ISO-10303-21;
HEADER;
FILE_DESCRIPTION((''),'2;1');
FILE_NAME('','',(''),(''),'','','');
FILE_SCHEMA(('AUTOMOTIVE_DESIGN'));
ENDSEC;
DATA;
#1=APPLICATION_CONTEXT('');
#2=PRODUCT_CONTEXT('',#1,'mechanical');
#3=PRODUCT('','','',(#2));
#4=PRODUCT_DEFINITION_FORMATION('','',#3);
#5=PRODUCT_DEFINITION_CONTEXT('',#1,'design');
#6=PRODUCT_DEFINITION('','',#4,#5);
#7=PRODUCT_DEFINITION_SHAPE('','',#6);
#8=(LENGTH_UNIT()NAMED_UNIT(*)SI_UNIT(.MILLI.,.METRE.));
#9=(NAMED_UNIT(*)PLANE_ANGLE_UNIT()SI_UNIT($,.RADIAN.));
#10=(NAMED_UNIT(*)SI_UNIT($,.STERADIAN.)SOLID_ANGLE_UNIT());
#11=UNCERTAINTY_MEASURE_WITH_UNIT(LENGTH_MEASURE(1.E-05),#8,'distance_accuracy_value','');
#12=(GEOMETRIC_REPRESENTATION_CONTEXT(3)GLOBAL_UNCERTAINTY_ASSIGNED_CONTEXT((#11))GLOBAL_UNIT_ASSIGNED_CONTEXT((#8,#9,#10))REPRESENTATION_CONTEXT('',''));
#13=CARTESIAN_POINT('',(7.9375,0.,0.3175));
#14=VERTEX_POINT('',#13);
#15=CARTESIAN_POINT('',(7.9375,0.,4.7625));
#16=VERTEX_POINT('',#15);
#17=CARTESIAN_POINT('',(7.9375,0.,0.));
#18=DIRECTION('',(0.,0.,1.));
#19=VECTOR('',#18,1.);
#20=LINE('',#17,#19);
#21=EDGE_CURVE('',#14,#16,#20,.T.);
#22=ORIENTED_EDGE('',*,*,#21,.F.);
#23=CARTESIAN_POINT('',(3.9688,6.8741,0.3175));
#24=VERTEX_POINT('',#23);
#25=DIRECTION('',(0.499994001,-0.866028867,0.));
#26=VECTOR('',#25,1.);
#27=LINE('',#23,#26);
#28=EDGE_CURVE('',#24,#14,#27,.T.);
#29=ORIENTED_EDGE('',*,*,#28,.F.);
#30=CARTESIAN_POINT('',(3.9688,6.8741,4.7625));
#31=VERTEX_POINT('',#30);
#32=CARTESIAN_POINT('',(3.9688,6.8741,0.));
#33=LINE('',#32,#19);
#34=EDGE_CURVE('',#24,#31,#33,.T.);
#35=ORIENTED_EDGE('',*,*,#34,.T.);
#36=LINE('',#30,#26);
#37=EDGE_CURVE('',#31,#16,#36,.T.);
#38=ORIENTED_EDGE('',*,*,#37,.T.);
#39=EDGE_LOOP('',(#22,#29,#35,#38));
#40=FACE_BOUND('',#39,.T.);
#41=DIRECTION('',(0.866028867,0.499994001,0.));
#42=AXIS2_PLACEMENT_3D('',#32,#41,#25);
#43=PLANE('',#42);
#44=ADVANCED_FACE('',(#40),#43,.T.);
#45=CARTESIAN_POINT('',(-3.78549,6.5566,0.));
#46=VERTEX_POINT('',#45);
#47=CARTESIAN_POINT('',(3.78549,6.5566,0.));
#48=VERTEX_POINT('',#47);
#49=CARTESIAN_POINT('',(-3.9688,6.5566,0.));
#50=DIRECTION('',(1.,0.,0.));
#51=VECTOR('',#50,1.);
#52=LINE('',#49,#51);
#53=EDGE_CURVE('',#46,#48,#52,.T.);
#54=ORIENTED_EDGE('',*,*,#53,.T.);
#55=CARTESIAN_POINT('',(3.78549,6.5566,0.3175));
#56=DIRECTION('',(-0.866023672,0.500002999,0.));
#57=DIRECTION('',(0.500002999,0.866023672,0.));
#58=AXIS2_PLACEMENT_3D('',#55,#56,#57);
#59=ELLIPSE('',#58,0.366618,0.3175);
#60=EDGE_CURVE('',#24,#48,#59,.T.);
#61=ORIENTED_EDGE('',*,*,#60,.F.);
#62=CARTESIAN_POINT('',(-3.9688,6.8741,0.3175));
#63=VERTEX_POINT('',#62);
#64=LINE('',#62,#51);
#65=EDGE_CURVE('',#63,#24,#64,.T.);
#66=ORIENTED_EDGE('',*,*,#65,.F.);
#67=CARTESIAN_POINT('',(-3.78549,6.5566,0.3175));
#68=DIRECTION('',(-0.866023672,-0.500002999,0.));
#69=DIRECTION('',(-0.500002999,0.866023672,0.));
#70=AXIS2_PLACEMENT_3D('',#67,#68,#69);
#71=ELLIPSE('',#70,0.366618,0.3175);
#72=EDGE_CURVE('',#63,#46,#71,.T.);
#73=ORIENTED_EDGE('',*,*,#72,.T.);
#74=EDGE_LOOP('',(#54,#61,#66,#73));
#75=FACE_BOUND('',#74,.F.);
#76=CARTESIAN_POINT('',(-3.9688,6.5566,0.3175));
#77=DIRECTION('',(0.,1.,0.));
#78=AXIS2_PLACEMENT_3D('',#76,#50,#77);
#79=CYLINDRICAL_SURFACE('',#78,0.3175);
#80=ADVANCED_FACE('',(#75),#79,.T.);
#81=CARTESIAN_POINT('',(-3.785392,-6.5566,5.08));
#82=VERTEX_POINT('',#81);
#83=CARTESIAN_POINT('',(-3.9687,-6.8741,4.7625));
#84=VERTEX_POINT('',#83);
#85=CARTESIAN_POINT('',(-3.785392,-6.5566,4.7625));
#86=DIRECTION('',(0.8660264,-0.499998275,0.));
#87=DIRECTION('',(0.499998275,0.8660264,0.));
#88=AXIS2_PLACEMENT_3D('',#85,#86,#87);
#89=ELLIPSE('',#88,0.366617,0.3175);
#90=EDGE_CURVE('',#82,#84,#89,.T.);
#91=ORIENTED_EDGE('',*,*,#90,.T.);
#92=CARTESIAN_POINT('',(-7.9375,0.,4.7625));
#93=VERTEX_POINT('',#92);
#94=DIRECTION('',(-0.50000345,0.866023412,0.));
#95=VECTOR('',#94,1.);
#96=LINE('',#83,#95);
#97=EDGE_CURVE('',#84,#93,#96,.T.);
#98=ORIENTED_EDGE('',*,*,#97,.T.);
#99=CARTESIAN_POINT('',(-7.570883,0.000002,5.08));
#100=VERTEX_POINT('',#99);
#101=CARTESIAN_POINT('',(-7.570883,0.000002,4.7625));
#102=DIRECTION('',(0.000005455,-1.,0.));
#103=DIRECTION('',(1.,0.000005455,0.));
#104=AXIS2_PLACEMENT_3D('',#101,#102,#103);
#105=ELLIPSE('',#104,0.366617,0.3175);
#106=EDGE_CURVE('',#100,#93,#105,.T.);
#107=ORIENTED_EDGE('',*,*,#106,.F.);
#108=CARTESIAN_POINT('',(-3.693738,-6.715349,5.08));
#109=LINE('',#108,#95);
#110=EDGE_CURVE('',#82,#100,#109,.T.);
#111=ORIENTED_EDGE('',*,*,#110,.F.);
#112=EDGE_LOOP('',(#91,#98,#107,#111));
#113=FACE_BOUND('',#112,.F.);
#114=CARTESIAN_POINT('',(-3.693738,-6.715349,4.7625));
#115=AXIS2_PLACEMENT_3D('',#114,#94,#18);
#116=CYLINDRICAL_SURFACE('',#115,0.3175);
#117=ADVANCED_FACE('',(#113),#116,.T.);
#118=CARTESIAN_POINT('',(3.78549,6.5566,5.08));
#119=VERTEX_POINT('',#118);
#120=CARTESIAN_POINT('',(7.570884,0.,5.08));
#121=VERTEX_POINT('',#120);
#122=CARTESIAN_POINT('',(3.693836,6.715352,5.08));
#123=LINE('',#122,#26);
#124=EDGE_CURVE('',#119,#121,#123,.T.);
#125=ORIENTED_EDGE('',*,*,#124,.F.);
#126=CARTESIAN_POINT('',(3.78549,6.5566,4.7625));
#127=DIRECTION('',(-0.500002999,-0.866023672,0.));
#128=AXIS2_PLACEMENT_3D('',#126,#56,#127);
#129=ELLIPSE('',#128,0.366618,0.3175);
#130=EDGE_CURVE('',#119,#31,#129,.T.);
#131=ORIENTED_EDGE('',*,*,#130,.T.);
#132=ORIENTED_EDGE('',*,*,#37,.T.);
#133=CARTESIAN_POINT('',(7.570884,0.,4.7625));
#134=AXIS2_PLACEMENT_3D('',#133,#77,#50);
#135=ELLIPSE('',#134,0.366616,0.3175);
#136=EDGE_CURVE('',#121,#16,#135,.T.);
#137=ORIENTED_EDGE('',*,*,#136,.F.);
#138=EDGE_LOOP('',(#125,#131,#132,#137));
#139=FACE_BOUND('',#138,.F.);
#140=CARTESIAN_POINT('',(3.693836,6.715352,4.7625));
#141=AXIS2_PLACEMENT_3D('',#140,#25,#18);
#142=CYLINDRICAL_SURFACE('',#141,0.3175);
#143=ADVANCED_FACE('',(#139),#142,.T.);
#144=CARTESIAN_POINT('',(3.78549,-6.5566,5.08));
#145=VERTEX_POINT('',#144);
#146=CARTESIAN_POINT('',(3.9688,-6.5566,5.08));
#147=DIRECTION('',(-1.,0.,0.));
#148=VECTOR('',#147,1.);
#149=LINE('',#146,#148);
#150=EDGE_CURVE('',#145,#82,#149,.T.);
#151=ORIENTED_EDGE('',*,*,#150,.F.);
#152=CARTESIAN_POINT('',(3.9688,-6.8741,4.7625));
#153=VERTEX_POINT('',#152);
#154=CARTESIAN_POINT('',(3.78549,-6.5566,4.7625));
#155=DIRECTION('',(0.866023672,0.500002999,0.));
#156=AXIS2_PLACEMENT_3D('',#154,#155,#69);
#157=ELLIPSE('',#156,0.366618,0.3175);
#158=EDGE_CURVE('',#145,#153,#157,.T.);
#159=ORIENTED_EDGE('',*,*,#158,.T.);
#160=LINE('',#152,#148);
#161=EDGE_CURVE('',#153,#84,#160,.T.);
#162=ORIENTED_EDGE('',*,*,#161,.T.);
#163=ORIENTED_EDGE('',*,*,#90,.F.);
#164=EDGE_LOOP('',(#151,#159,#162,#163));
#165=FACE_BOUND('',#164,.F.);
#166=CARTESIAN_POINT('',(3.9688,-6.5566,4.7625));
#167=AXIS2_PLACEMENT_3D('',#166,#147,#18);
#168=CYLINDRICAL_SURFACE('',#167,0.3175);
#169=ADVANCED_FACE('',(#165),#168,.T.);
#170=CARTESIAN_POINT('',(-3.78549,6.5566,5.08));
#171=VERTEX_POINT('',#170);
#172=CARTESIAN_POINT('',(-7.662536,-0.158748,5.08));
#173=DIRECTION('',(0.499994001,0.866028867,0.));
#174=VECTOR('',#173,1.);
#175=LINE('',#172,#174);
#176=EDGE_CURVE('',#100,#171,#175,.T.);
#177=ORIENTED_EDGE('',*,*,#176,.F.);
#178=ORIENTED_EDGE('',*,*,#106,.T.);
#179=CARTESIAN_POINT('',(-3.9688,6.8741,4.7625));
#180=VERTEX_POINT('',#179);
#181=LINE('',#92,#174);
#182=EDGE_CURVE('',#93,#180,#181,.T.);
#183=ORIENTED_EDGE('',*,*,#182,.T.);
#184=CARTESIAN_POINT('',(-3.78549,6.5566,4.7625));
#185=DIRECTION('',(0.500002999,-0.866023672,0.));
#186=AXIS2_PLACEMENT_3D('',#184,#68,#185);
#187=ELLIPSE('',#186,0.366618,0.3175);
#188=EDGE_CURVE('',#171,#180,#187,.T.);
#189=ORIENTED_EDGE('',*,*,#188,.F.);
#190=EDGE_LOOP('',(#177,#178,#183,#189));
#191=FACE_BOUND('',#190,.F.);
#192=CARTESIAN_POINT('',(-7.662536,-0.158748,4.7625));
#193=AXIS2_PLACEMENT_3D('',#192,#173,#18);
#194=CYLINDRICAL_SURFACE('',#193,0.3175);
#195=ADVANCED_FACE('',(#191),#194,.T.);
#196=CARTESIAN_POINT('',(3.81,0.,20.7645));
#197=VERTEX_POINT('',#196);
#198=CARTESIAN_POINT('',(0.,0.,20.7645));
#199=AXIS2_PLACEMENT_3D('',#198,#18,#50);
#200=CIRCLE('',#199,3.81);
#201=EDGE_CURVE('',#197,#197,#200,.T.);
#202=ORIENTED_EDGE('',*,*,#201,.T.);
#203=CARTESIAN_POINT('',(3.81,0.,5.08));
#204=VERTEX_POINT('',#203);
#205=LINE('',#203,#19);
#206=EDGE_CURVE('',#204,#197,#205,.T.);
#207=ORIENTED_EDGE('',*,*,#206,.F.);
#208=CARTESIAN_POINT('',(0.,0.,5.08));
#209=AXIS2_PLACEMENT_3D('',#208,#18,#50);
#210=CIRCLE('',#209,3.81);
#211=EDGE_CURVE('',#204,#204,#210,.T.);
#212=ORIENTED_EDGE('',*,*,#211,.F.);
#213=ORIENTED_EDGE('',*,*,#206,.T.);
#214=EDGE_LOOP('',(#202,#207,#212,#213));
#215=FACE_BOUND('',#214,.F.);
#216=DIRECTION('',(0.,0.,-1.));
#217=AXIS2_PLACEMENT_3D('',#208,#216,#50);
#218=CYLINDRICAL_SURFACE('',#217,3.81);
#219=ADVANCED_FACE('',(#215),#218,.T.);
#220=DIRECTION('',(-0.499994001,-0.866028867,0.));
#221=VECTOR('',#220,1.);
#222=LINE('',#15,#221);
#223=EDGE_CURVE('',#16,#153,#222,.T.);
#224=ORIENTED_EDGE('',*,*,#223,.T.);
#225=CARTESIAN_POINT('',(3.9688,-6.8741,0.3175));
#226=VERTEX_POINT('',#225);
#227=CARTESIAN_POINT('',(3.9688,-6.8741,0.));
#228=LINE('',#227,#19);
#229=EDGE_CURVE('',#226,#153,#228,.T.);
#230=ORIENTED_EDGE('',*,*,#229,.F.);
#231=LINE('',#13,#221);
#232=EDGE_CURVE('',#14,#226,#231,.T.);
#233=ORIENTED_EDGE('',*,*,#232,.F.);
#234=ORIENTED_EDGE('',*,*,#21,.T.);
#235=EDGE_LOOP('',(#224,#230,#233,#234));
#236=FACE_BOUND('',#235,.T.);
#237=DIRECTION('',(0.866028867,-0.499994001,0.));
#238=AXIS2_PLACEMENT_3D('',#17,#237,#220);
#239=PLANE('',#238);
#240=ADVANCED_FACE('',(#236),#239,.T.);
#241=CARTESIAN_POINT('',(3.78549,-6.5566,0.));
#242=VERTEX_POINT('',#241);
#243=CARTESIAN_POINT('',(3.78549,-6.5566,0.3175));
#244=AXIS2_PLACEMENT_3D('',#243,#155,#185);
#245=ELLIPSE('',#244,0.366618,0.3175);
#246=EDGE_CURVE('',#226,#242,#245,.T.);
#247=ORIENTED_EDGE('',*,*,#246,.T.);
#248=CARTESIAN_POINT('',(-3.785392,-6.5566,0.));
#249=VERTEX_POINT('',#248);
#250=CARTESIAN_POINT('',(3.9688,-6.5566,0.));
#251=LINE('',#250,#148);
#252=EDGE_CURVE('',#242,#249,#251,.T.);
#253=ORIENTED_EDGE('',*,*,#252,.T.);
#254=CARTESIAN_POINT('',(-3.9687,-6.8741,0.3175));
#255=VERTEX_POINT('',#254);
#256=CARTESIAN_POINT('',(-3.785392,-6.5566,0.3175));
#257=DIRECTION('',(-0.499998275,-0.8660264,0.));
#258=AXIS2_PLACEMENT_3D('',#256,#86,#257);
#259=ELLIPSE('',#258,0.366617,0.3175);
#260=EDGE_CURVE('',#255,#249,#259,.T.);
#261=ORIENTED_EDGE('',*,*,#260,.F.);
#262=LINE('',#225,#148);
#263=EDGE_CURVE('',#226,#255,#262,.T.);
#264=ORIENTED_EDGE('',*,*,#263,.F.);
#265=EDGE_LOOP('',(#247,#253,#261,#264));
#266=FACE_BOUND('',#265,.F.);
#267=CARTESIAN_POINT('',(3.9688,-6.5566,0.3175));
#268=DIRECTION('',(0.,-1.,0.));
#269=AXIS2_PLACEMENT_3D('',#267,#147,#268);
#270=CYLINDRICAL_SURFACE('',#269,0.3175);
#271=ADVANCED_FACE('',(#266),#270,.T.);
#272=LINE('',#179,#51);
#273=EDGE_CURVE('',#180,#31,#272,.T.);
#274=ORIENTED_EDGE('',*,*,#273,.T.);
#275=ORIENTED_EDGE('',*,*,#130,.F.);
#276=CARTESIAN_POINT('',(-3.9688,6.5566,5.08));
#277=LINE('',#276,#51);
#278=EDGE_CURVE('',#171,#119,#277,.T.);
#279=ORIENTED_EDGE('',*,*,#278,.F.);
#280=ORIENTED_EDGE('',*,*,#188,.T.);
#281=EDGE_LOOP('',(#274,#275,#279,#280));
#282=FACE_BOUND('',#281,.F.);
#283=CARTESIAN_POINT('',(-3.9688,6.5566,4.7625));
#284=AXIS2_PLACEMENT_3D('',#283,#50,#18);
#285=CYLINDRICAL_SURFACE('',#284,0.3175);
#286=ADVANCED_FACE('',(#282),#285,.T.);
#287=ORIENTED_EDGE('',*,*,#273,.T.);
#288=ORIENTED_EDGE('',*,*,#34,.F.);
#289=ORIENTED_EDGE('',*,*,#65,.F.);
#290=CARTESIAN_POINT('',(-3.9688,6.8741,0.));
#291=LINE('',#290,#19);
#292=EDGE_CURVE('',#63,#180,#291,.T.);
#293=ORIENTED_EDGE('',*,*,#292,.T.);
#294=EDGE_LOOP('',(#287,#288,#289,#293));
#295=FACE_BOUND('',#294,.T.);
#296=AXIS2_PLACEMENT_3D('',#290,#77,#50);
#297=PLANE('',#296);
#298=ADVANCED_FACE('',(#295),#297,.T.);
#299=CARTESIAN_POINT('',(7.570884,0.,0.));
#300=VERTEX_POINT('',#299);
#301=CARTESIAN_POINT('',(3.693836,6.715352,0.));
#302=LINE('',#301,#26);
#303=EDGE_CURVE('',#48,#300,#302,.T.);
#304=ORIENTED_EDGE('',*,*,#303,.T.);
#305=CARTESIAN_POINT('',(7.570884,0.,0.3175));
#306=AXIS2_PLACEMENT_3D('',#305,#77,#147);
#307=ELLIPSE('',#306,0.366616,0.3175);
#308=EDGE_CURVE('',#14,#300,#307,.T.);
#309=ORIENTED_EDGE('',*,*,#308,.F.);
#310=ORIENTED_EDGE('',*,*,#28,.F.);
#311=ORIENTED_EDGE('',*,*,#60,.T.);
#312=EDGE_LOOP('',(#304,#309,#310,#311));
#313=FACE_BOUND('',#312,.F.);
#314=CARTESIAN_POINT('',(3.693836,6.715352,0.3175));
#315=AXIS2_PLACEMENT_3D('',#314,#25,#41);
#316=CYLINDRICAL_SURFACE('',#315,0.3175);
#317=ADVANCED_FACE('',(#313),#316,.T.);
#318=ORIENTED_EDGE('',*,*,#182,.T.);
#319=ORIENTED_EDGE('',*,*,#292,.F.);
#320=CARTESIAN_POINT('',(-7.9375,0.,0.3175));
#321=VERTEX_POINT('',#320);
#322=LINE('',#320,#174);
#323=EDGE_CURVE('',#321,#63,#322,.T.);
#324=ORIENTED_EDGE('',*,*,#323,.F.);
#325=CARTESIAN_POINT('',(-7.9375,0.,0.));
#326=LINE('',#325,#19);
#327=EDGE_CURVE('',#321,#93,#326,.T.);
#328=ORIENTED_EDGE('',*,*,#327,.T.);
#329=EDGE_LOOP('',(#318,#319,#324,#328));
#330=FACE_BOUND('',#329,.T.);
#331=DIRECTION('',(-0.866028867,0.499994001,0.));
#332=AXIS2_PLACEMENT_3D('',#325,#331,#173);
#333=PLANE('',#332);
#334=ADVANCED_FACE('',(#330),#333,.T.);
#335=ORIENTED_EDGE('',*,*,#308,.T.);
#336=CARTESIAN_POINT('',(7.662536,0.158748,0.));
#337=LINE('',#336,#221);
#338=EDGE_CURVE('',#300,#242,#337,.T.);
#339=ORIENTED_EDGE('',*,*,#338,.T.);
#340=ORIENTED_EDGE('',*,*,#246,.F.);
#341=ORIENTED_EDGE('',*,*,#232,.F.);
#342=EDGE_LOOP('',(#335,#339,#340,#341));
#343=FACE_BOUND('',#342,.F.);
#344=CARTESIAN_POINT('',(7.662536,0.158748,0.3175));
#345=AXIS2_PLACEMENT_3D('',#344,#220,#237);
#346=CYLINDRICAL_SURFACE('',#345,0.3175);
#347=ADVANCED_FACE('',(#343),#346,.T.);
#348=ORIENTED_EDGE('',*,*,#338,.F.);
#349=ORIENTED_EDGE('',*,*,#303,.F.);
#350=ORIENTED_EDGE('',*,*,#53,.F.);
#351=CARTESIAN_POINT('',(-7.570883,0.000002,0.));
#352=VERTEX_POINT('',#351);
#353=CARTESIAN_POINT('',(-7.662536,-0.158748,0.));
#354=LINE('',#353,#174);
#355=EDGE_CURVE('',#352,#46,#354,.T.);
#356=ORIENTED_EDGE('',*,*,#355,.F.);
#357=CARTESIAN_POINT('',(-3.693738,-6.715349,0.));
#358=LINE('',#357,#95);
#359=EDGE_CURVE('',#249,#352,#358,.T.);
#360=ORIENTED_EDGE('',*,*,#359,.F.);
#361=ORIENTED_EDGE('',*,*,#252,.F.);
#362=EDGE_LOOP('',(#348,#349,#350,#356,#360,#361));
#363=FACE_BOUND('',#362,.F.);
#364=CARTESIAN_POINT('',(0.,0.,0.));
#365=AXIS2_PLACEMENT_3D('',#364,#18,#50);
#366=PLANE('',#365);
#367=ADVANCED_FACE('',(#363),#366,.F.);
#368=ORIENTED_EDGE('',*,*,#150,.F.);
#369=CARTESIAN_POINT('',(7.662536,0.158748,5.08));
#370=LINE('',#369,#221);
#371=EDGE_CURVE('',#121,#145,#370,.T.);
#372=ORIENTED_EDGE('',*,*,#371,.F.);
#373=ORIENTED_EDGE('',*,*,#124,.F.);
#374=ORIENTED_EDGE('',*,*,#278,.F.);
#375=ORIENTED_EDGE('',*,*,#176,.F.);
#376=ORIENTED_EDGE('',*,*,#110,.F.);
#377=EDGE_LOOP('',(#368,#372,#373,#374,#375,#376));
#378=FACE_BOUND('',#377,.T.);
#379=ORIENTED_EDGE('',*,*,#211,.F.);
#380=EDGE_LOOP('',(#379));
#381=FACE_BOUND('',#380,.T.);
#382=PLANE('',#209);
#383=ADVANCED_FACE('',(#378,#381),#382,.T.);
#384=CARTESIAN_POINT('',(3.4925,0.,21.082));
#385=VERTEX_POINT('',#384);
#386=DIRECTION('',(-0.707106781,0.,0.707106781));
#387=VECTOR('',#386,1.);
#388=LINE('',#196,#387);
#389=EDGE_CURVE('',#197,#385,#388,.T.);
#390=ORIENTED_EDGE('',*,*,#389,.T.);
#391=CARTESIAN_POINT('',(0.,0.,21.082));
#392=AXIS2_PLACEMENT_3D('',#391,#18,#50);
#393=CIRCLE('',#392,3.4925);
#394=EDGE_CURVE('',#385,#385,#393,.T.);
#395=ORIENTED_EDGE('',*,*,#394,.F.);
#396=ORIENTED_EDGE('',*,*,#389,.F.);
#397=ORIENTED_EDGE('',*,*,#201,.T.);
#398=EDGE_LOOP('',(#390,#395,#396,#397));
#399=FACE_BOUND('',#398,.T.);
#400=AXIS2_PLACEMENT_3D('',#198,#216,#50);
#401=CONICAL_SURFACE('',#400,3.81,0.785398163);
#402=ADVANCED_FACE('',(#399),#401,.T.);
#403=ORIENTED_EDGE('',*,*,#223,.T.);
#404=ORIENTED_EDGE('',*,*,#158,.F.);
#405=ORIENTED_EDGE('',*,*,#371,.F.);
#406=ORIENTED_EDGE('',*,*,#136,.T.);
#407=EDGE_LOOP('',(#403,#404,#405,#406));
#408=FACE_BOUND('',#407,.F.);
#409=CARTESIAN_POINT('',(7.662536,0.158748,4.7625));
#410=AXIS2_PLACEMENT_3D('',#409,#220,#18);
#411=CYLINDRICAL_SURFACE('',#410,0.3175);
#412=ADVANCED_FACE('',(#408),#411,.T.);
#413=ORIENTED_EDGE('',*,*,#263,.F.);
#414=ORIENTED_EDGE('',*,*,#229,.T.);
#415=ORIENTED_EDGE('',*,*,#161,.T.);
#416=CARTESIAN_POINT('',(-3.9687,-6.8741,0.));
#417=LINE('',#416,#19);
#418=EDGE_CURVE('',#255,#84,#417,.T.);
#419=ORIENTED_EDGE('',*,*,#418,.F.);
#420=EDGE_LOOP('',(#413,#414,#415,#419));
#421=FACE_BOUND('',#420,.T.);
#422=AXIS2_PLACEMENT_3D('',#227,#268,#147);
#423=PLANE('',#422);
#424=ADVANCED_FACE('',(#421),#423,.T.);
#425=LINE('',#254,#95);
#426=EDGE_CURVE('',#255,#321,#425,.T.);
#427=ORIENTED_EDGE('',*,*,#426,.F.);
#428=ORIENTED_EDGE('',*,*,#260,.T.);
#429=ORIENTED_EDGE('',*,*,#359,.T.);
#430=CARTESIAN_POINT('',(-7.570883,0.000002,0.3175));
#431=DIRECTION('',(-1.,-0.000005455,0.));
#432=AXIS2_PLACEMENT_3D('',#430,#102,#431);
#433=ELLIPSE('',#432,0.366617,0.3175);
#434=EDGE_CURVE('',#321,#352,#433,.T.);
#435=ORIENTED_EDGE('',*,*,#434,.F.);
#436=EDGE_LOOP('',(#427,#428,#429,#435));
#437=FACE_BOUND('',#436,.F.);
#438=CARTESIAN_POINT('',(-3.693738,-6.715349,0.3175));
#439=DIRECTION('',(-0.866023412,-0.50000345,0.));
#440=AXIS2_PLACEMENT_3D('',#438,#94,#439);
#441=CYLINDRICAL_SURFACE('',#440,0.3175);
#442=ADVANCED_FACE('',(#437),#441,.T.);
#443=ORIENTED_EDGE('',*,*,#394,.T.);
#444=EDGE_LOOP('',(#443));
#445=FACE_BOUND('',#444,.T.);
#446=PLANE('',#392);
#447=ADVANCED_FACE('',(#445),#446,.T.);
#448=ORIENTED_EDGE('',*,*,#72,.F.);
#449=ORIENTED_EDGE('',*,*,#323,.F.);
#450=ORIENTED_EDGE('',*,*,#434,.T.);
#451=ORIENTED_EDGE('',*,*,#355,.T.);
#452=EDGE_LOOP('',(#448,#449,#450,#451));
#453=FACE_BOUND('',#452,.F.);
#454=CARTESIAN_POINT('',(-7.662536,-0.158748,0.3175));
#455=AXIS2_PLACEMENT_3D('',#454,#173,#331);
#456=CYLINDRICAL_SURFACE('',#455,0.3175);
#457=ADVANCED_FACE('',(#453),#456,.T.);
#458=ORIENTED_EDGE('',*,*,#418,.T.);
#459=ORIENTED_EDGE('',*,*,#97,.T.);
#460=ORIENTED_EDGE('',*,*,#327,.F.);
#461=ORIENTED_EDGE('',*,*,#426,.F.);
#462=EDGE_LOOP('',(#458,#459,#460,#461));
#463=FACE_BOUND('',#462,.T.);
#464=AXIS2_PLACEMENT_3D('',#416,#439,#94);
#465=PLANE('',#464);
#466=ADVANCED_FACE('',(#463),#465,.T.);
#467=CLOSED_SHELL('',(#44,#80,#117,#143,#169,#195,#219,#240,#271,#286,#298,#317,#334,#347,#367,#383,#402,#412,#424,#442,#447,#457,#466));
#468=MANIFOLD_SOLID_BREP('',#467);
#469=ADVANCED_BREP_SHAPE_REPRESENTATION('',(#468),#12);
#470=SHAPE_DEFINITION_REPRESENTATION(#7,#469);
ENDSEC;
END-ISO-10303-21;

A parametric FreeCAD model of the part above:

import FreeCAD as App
import Part
import Sketcher
from FreeCAD import Vector
Q = App.Units.Quantity


def edges_at(feature, points):
    """Names of the edges that pass closest to the given points."""
    edges = feature.Shape.Edges
    near = lambda p: min(range(len(edges)), key=lambda i: edges[i].distToShape(Part.Vertex(*p))[0])
    return sorted({f"Edge{near(p) + 1}" for p in points})

doc = App.newDocument("Part")
body = doc.addObject("PartDesign::Body", "Body")

sketch1 = body.newObject("Sketcher::SketchObject", "Sketch")
sketch1.AttachmentSupport = (doc.getObject("XY_Plane"), [""])
sketch1.MapMode = "FlatFace"
sketch1.addGeometry(Part.LineSegment(Vector(4, -7, 0), Vector(8, 0, 0)), False)
sketch1.addGeometry(Part.LineSegment(Vector(8, 0, 0), Vector(4, 7, 0)), False)
sketch1.addGeometry(Part.LineSegment(Vector(4, 7, 0), Vector(-4, 7, 0)), False)
sketch1.addGeometry(Part.LineSegment(Vector(-4, 7, 0), Vector(-8, 0, 0)), False)
sketch1.addGeometry(Part.LineSegment(Vector(-8, 0, 0), Vector(-4, -7, 0)), False)
sketch1.addGeometry(Part.LineSegment(Vector(-4, -7, 0), Vector(4, -7, 0)), False)
sketch1.addConstraint(Sketcher.Constraint("Coincident", 0, 2, 1, 1))
sketch1.addConstraint(Sketcher.Constraint("Coincident", 1, 2, 2, 1))
sketch1.addConstraint(Sketcher.Constraint("Coincident", 2, 2, 3, 1))
sketch1.addConstraint(Sketcher.Constraint("Coincident", 3, 2, 4, 1))
sketch1.addConstraint(Sketcher.Constraint("Coincident", 4, 2, 5, 1))
sketch1.addConstraint(Sketcher.Constraint("Coincident", 5, 2, 0, 1))
sketch1.addConstraint(Sketcher.Constraint("Horizontal", 2))
sketch1.addConstraint(Sketcher.Constraint("Horizontal", 5))
sketch1.addConstraint(Sketcher.Constraint("Symmetric", 0, 2, 3, 2, -1, 1))
sketch1.addConstraint(Sketcher.Constraint("Symmetric", 1, 2, 4, 2, -1, 1))
sketch1.addConstraint(Sketcher.Constraint("PointOnObject", 0, 2, -1))
sketch1.addConstraint(Sketcher.Constraint("Parallel", 0, 3))
sketch1.addConstraint(Sketcher.Constraint("Vertical", 2, 2, 4, 2))
sketch1.addConstraint(Sketcher.Constraint("Angle", 0, Q("60.0004 deg")))
sketch1.addConstraint(Sketcher.Constraint("DistanceX", 3, 2, 0, 2, Q("0.625 in")))
sketch1.addConstraint(Sketcher.Constraint("DistanceX", 2, 2, 2, 1, Q("0.3125 in")))
pad1 = body.newObject("PartDesign::Pad", "Pad")
pad1.Profile = sketch1
pad1.Length = Q("0.2 in")

sketch2 = body.newObject("Sketcher::SketchObject", "Sketch001")
sketch2.AttachmentSupport = (doc.getObject("XY_Plane"), [""])
sketch2.MapMode = "FlatFace"
sketch2.AttachmentOffset = App.Placement(Vector(0, 0, 0.2 * 25.4), App.Rotation())
sketch2.addGeometry(Part.Circle(Vector(0, 0, 0), Vector(0, 0, 1), 3.8), False)
sketch2.addConstraint(Sketcher.Constraint("Coincident", 0, 3, -1, 1))
sketch2.addConstraint(Sketcher.Constraint("Diameter", 0, Q("0.3 in")))
pad2 = body.newObject("PartDesign::Pad", "Pad001")
pad2.Profile = sketch2
pad2.Length = Q("0.63 in")
doc.recompute()

chamfer = body.newObject("PartDesign::Chamfer", "Chamfer")
chamfer.Base = (pad2, edges_at(pad2, [(-3.81, 0, 21.082)]))
chamfer.Size = Q("0.0125 in")
doc.recompute()

fillet = body.newObject("PartDesign::Fillet", "Fillet")
fillet.Base = (chamfer, edges_at(chamfer, [
    (5.953, 3.437, 5.08),
    (0, 6.874, 5.08),
    (-5.953, 3.437, 5.08),
    (-5.953, -3.437, 5.08),
    (0, -6.874, 5.08),
    (5.953, -3.437, 5.08),
    (5.953, -3.437, 0),
    (0, -6.874, 0),
    (-5.953, -3.437, 0),
    (-5.953, 3.437, 0),
    (0, 6.874, 0),
    (5.953, 3.437, 0),
]))
fillet.Radius = Q("0.0125 in")

doc.recompute()
